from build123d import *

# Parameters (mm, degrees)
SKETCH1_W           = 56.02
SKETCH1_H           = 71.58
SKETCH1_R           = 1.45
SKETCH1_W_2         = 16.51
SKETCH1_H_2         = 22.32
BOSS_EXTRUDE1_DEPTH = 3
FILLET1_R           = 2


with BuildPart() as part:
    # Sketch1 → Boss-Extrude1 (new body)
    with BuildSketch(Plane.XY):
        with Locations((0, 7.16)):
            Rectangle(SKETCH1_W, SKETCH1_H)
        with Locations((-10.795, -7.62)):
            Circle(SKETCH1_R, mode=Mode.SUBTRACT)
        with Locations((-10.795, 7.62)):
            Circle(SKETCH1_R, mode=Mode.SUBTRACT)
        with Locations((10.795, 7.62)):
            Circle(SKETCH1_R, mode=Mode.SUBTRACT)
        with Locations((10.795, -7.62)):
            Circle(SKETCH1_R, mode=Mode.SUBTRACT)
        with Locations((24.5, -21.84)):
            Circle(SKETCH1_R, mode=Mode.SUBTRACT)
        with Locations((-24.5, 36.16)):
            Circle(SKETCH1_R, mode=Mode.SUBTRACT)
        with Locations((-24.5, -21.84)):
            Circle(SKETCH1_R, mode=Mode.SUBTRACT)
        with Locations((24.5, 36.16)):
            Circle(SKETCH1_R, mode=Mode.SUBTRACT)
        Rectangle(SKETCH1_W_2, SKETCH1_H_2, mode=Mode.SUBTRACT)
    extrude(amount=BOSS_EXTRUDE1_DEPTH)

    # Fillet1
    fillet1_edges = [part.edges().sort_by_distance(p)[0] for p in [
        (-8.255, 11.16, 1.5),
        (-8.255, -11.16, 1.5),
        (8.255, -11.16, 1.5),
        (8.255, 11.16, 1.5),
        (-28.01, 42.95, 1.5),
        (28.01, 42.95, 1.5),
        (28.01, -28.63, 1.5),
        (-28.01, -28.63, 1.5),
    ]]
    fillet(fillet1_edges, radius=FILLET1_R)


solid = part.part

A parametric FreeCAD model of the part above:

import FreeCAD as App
import Part
import Sketcher


def edges_at(feature, points):
    """Names of the edges that pass closest to the given points."""
    edges = feature.Shape.Edges
    near = lambda p: min(range(len(edges)), key=lambda i: edges[i].distToShape(Part.Vertex(*p))[0])
    return sorted({f"Edge{near(p) + 1}" for p in points})


def add_polygon(sketch, points):
    """Adds a closed chain of lines whose ends are joined by coincident constraints."""
    first, n = sketch.GeometryCount, len(points)
    for a, b in zip(points, points[1:] + points[:1]):
        sketch.addGeometry(Part.LineSegment(App.Vector(*a, 0), App.Vector(*b, 0)), False)
    for i in range(n):
        sketch.addConstraint(Sketcher.Constraint("Coincident", first + i, 2, first + (i + 1) % n, 1))

doc = App.newDocument("Part")
body = doc.addObject("PartDesign::Body", "Body")

# Sketch on XY plane
sketch1 = body.newObject("Sketcher::SketchObject", "Sketch")
sketch1.AttachmentSupport = (doc.getObject("XY_Plane"), [""])
sketch1.MapMode = "FlatFace"
add_polygon(sketch1, [(-28, 43), (-28, -28.6), (28, -28.6), (28, 43)])  # lines 0-3
sketch1.addGeometry(Part.Circle(App.Vector(-24.5, -21.8, 0), App.Vector(0, 0, 1), 1.4), False)  # 4
sketch1.addGeometry(Part.Circle(App.Vector(-10.8, -7.6, 0), App.Vector(0, 0, 1), 1.4), False)  # 5
sketch1.addGeometry(Part.Circle(App.Vector(24.5, -21.8, 0), App.Vector(0, 0, 1), 1.4), False)  # 6
sketch1.addGeometry(Part.Circle(App.Vector(10.8, -7.6, 0), App.Vector(0, 0, 1), 1.4), False)  # 7
add_polygon(sketch1, [(8.3, -11.2), (-8.3, -11.2), (-8.3, 11.2), (8.3, 11.2)])  # lines 8-11
sketch1.addGeometry(Part.Circle(App.Vector(-10.8, 7.6, 0), App.Vector(0, 0, 1), 1.4), False)  # 12
sketch1.addGeometry(Part.Circle(App.Vector(-24.5, 36.2, 0), App.Vector(0, 0, 1), 1.4), False)  # 13
sketch1.addGeometry(Part.Circle(App.Vector(10.8, 7.6, 0), App.Vector(0, 0, 1), 1.4), False)  # 14
sketch1.addGeometry(Part.Circle(App.Vector(24.5, 36.2, 0), App.Vector(0, 0, 1), 1.4), False)  # 15
sketch1.addConstraint([
    Sketcher.Constraint("Vertical", 0),
    Sketcher.Constraint("Horizontal", 1),
    Sketcher.Constraint("Vertical", 2),
    Sketcher.Constraint("Horizontal", 3),
    Sketcher.Constraint("Horizontal", 8),
    Sketcher.Constraint("Vertical", 9),
    Sketcher.Constraint("Horizontal", 10),
    Sketcher.Constraint("Vertical", 11),
    Sketcher.Constraint("Equal", 4, 5),
    Sketcher.Constraint("Equal", 5, 6),
    Sketcher.Constraint("Equal", 6, 7),
    Sketcher.Constraint("Equal", 7, 12),
    Sketcher.Constraint("Equal", 12, 13),
    Sketcher.Constraint("Equal", 13, 14),
    Sketcher.Constraint("Equal", 14, 15),
    Sketcher.Constraint("Symmetric", 7, 3, 12, 3, -1, 1),
    Sketcher.Constraint("Symmetric", 5, 3, 14, 3, -1, 1),
    Sketcher.Constraint("Symmetric", 8, 2, 10, 2, -1, 1),
    Sketcher.Constraint("Symmetric", 4, 3, 6, 3, -2),
    Sketcher.Constraint("Symmetric", 5, 3, 7, 3, -2),
    Sketcher.Constraint("Symmetric", 13, 3, 15, 3, -2),
    Sketcher.Constraint("Vertical", 4, 3, 13, 3),
    Sketcher.Constraint("Diameter", 4, 2.9),
    Sketcher.Constraint("DistanceX", 4, 3, 6, 3, 49.0),
    Sketcher.Constraint("DistanceY", 4, 3, 13, 3, 58.0),
    Sketcher.Constraint("DistanceX", 1, 1, 1, 2, 56.02),
    Sketcher.Constraint("DistanceX", 8, 2, 8, 1, 16.51),
    Sketcher.Constraint("DistanceY", 0, 2, 0, 1, 71.58),
    Sketcher.Constraint("DistanceY", 9, 1, 9, 2, 22.32),
    Sketcher.Constraint("DistanceY", 4, 3, -1, 1, 21.84),
    Sketcher.Constraint("DistanceY", 5, 3, -1, 1, 7.62),
    Sketcher.Constraint("DistanceX", 0, 2, -1, 1, 28.01),
    Sketcher.Constraint("DistanceY", 0, 2, -1, 1, 28.63),
    Sketcher.Constraint("DistanceX", 5, 3, 7, 3, 21.59),
])
pad1 = body.newObject("PartDesign::Pad", "Pad")
pad1.Profile = sketch1
pad1.Length = 3
doc.recompute()

fillet = body.newObject("PartDesign::Fillet", "Fillet")
fillet.Base = (pad1, edges_at(pad1, [
    (-8.255, 11.16, 1.5),
    (-8.255, -11.16, 1.5),
    (8.255, -11.16, 1.5),
    (8.255, 11.16, 1.5),
    (-28.01, 42.95, 1.5),
    (28.01, 42.95, 1.5),
    (28.01, -28.63, 1.5),
    (-28.01, -28.63, 1.5),
]))
fillet.Radius = 2

doc.recompute()
